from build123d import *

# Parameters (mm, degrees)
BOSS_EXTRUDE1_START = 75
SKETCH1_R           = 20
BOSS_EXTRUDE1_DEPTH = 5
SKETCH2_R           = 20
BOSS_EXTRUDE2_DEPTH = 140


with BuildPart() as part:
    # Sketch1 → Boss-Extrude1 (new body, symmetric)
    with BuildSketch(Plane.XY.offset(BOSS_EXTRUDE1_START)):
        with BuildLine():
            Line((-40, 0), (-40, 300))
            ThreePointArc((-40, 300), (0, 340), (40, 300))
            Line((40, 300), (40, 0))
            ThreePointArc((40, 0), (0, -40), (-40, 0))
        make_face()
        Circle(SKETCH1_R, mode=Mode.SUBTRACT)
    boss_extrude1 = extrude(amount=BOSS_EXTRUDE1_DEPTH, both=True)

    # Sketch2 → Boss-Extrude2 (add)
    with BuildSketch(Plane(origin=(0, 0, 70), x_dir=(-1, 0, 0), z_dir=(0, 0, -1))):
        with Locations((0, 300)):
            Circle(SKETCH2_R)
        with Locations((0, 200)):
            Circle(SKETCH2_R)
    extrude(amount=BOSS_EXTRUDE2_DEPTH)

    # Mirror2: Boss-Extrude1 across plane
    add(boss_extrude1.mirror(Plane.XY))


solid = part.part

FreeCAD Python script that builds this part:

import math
import FreeCAD as App
import Part
import Sketcher

V = App.Vector
Q = App.Units.Quantity

doc = App.newDocument("Part")
body = doc.addObject("PartDesign::Body", "Body")

# Sketch on XY plane
sketch1 = body.newObject("Sketcher::SketchObject", "Sketch")
sketch1.AttachmentSupport = (doc.getObject("XY_Plane"), [""])
sketch1.MapMode = "FlatFace"
sketch1.AttachmentOffset = App.Placement(V(0, 0, 75), App.Rotation())
sketch1.addGeometry([
    Part.LineSegment(V(-40, 300, 0), V(-40, 0, 0)),  # 0
    Part.ArcOfCircle(Part.Circle(V(0, 0, 0), V(0, 0, 1), 40), math.radians(180), math.radians(360)),  # 1
    Part.LineSegment(V(40, 0, 0), V(40, 300, 0)),  # 2
    Part.ArcOfCircle(Part.Circle(V(0, 300, 0), V(0, 0, 1), 40), math.radians(0), math.radians(180)),  # 3
    Part.Circle(V(0, 0, 0), V(0, 0, 1), 20),  # 4
], False)
sketch1.addConstraint([
    Sketcher.Constraint("Tangent", 0, 2, 1, 1),
    Sketcher.Constraint("Tangent", 1, 2, 2, 1),
    Sketcher.Constraint("Tangent", 2, 2, 3, 1),
    Sketcher.Constraint("Tangent", 3, 2, 0, 1),
    Sketcher.Constraint("Vertical", 0),
    Sketcher.Constraint("Vertical", 2),
    Sketcher.Constraint("Coincident", 1, 3, -1, 1),
    Sketcher.Constraint("Coincident", 4, 3, -1, 1),
    Sketcher.Constraint("Diameter", 4, Q("40 mm")),
    Sketcher.Constraint("Radius", 1, Q("40 mm")),
    Sketcher.Constraint("DistanceY", 0, 2, 0, 1, Q("300 mm")),
])
pad1 = body.newObject("PartDesign::Pad", "Pad")
pad1.Profile = sketch1
pad1.Length = 10
pad1.Midplane = True

# Sketch on XY plane
sketch2 = body.newObject("Sketcher::SketchObject", "Sketch001")
sketch2.AttachmentSupport = (doc.getObject("XY_Plane"), [""])
sketch2.MapMode = "FlatFace"
sketch2.AttachmentOffset = App.Placement(V(0, 0, 70), App.Rotation())
sketch2.addGeometry([
    Part.Circle(V(0, 300, 0), V(0, 0, 1), 20),
    Part.Circle(V(0, 200, 0), V(0, 0, 1), 20),
], False)
sketch2.addConstraint([
    Sketcher.Constraint("Equal", 0, 1),
    Sketcher.Constraint("PointOnObject", 0, 3, -2),
    Sketcher.Constraint("PointOnObject", 1, 3, -2),
    Sketcher.Constraint("Diameter", 0, Q("40 mm")),
    Sketcher.Constraint("DistanceY", -1, 1, 0, 3, Q("300 mm")),
    Sketcher.Constraint("DistanceY", -1, 1, 1, 3, Q("200 mm")),
])
pad2 = body.newObject("PartDesign::Pad", "Pad001")
pad2.Profile = sketch2
pad2.Length = 140
pad2.Reversed = True
doc.recompute()

mirrored = body.newObject("PartDesign::Mirrored", "Mirrored")
mirrored.Originals = [pad1]
mirrored.MirrorPlane = (doc.getObject("XY_Plane"), [""])
body.Tip = mirrored

doc.recompute()
